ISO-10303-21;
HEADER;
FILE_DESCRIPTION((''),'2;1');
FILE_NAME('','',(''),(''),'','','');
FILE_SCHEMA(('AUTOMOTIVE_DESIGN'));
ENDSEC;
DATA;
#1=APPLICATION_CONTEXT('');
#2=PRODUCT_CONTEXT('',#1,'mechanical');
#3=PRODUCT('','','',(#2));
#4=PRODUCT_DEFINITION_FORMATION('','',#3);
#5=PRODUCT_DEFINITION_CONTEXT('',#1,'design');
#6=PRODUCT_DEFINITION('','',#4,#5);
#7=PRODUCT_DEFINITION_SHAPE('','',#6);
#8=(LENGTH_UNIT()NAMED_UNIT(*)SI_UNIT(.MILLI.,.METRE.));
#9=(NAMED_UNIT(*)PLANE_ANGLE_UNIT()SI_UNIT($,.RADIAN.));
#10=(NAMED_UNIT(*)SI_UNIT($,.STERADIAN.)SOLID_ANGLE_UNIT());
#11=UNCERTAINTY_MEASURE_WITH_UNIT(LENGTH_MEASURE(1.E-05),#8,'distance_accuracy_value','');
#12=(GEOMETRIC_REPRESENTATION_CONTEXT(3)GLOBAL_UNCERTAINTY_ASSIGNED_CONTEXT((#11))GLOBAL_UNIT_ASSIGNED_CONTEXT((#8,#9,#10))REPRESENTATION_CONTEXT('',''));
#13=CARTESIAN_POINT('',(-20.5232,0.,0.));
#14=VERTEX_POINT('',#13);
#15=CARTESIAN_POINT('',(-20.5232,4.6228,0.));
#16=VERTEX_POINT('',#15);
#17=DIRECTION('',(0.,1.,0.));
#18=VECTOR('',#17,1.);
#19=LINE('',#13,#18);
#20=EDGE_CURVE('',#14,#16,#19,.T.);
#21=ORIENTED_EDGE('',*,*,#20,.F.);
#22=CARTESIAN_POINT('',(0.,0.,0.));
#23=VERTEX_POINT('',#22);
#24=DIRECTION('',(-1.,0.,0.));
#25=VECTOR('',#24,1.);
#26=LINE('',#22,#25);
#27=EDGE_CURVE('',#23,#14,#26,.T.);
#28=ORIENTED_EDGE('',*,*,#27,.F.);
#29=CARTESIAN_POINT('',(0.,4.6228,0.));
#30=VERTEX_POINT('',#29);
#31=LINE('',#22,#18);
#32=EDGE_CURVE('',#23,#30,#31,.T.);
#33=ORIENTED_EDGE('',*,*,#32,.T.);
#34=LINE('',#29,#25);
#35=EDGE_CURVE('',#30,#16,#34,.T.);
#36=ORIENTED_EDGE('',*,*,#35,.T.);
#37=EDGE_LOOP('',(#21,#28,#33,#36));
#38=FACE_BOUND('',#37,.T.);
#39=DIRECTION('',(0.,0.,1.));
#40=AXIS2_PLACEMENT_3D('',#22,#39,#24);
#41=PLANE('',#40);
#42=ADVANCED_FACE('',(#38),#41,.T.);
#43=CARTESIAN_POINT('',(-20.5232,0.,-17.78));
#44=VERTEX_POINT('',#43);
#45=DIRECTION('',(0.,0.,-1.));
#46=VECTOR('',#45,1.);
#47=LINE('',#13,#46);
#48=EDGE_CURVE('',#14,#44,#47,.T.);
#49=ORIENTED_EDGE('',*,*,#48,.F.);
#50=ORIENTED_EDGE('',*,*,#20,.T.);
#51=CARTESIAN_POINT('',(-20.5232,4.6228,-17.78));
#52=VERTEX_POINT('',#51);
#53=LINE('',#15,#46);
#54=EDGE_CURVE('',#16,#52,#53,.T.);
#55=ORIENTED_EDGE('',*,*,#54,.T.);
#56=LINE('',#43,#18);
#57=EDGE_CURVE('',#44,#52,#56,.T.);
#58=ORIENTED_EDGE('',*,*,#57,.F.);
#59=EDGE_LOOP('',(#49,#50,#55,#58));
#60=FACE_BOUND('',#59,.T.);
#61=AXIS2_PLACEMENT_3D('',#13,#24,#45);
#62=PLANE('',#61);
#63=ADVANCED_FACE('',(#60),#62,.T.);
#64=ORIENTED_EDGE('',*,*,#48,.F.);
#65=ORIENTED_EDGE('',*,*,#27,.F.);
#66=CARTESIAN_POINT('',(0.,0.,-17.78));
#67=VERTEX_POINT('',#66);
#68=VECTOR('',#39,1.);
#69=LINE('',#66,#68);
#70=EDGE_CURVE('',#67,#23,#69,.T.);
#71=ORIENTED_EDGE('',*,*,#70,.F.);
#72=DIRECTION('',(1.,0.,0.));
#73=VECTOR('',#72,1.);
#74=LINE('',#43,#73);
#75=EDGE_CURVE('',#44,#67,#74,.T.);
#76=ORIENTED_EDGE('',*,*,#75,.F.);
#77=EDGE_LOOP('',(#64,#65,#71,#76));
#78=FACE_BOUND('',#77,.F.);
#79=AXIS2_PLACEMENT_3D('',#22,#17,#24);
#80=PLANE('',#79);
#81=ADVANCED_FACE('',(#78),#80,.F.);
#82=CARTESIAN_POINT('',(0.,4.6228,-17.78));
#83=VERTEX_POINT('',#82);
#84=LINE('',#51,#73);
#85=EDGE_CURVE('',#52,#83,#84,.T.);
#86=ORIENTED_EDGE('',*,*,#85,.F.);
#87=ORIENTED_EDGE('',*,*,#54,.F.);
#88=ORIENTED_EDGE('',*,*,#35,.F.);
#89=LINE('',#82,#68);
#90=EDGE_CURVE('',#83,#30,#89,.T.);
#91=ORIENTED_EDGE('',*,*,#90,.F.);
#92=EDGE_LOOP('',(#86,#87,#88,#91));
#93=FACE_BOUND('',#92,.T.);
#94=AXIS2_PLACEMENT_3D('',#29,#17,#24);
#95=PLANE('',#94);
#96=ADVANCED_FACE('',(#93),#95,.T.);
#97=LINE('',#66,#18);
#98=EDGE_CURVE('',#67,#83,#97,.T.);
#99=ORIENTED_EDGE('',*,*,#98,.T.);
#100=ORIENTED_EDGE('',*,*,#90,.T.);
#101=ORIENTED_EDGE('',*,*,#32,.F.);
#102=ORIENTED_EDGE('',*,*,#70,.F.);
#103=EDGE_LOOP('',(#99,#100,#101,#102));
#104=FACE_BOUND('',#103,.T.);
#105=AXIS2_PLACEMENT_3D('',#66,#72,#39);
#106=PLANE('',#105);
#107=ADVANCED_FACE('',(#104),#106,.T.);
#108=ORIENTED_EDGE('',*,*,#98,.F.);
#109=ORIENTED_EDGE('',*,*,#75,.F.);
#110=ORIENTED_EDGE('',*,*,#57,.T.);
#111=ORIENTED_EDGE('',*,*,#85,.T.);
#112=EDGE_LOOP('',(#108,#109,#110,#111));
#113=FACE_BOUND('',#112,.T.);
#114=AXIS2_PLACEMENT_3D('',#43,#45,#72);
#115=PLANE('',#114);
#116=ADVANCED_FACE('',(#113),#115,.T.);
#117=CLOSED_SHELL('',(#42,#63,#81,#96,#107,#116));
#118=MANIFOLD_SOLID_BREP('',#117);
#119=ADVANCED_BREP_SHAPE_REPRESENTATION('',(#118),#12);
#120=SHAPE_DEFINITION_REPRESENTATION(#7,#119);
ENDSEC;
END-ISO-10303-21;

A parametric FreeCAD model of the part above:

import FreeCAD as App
import Part
import Sketcher
Q = App.Units.Quantity

doc = App.newDocument("Part")
body = doc.addObject("PartDesign::Body", "Body")

# Sketch on XZ plane
sketch1 = body.newObject("Sketcher::SketchObject", "Sketch")
sketch1.AttachmentSupport = (doc.getObject("XZ_Plane"), [""])
sketch1.MapMode = "FlatFace"
sketch1.addGeometry(Part.LineSegment(App.Vector(-21, 0, 0), App.Vector(0, 0, 0)), False)
sketch1.addGeometry(Part.LineSegment(App.Vector(0, 0, 0), App.Vector(0, -18, 0)), False)
sketch1.addGeometry(Part.LineSegment(App.Vector(0, -18, 0), App.Vector(-21, -18, 0)), False)
sketch1.addGeometry(Part.LineSegment(App.Vector(-21, -18, 0), App.Vector(-21, 0, 0)), False)
sketch1.addConstraint(Sketcher.Constraint("Coincident", 0, 2, 1, 1))
sketch1.addConstraint(Sketcher.Constraint("Coincident", 1, 2, 2, 1))
sketch1.addConstraint(Sketcher.Constraint("Coincident", 2, 2, 3, 1))
sketch1.addConstraint(Sketcher.Constraint("Coincident", 3, 2, 0, 1))
sketch1.addConstraint(Sketcher.Constraint("Horizontal", 0))
sketch1.addConstraint(Sketcher.Constraint("Vertical", 1))
sketch1.addConstraint(Sketcher.Constraint("Horizontal", 2))
sketch1.addConstraint(Sketcher.Constraint("Vertical", 3))
sketch1.addConstraint(Sketcher.Constraint("Coincident", 0, 2, -1, 1))
sketch1.addConstraint(Sketcher.Constraint("DistanceY", 1, 2, 1, 1, Q("0.7 in")))
sketch1.addConstraint(Sketcher.Constraint("DistanceX", 0, 1, 0, 2, Q("0.808 in")))
pad1 = body.newObject("PartDesign::Pad", "Pad")
pad1.Profile = sketch1
pad1.Length = Q("0.182 in")
pad1.Reversed = True

doc.recompute()
